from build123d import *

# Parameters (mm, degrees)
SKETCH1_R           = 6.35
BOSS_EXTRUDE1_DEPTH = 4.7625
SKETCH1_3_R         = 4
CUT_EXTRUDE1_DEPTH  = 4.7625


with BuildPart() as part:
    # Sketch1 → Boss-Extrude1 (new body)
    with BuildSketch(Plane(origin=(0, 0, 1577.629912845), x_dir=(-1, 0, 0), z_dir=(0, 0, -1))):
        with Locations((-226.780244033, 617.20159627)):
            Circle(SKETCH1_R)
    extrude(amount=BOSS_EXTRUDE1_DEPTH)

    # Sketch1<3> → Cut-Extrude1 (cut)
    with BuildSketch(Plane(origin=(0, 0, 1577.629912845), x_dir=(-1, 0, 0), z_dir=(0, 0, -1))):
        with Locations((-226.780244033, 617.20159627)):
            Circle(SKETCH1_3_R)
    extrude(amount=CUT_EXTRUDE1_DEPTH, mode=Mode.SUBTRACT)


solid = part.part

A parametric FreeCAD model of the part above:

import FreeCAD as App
import Part
import Sketcher

V = App.Vector
Q = App.Units.Quantity

doc = App.newDocument("Part")
body = doc.addObject("PartDesign::Body", "Body")

sketch1 = body.newObject("Sketcher::SketchObject", "Sketch")
sketch1.AttachmentSupport = (doc.getObject("XY_Plane"), [""])
sketch1.MapMode = "FlatFace"
sketch1.AttachmentOffset = App.Placement(V(0, 0, 1577.629913), App.Rotation())
sketch1.addGeometry(Part.Circle(V(226.780244, 617.201596, 0), V(0, 0, 1), 6.35), False)
sketch1.addConstraint(Sketcher.Constraint("Diameter", 0, Q("0.5 in")))
sketch1.addConstraint(Sketcher.Constraint("DistanceX", -1, 1, 0, 3, Q("226.780244 mm")))
sketch1.addConstraint(Sketcher.Constraint("DistanceY", -1, 1, 0, 3, Q("617.201596 mm")))
pad1 = body.newObject("PartDesign::Pad", "Pad")
pad1.Profile = sketch1
pad1.Length = Q("0.1875 in")
pad1.Reversed = True

sketch2 = body.newObject("Sketcher::SketchObject", "Sketch001")
sketch2.AttachmentSupport = (doc.getObject("XY_Plane"), [""])
sketch2.MapMode = "FlatFace"
sketch2.AttachmentOffset = App.Placement(V(0, 0, 1577.629913), App.Rotation())
sketch2.addGeometry(Part.Circle(V(226.780244, 617.201596, 0), V(0, 0, 1), 4), False)
sketch2.addConstraint(Sketcher.Constraint("Diameter", 0, Q("8 mm")))
sketch2.addConstraint(Sketcher.Constraint("DistanceX", -1, 1, 0, 3, Q("226.780244 mm")))
sketch2.addConstraint(Sketcher.Constraint("DistanceY", -1, 1, 0, 3, Q("617.201596 mm")))
pocket1 = body.newObject("PartDesign::Pocket", "Pocket")
pocket1.Profile = sketch2
pocket1.Length = Q("0.1875 in")

doc.recompute()
